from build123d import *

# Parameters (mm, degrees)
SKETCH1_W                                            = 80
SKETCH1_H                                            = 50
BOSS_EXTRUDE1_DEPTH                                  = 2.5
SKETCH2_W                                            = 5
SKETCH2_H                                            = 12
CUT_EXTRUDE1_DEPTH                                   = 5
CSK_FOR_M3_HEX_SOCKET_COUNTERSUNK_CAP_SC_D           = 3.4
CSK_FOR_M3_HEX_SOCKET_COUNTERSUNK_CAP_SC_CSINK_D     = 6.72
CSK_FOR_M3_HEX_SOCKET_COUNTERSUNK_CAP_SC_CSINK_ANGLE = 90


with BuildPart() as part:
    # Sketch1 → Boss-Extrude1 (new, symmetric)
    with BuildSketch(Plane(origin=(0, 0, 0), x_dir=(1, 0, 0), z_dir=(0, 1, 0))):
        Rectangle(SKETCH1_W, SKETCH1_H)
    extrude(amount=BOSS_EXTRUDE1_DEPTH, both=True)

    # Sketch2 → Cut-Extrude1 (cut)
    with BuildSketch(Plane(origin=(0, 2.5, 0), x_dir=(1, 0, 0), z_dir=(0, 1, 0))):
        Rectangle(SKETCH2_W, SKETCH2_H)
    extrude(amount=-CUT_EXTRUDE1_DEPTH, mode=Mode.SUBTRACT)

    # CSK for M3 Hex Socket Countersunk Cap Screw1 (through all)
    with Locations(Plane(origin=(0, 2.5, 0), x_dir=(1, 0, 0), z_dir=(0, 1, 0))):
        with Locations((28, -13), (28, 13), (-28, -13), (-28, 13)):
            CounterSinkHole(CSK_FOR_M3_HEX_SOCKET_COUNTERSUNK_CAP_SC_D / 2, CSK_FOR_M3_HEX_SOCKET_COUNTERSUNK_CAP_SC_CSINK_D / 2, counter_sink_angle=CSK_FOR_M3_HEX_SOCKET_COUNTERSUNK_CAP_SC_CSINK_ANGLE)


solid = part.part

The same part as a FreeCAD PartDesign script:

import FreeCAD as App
import Part
import Sketcher

doc = App.newDocument("Part")
body = doc.addObject("PartDesign::Body", "Body")

sketch1 = body.newObject("Sketcher::SketchObject", "Sketch")
sketch1.AttachmentSupport = (doc.getObject("XZ_Plane"), [""])
sketch1.MapMode = "FlatFace"
sketch1.addGeometry(Part.LineSegment(App.Vector(-40, -25, 0), App.Vector(-40, 25, 0)), False)
sketch1.addGeometry(Part.LineSegment(App.Vector(-40, 25, 0), App.Vector(40, 25, 0)), False)
sketch1.addGeometry(Part.LineSegment(App.Vector(40, 25, 0), App.Vector(40, -25, 0)), False)
sketch1.addGeometry(Part.LineSegment(App.Vector(40, -25, 0), App.Vector(-40, -25, 0)), False)
sketch1.addConstraint(Sketcher.Constraint("Coincident", 0, 2, 1, 1))
sketch1.addConstraint(Sketcher.Constraint("Coincident", 1, 2, 2, 1))
sketch1.addConstraint(Sketcher.Constraint("Coincident", 2, 2, 3, 1))
sketch1.addConstraint(Sketcher.Constraint("Coincident", 3, 2, 0, 1))
sketch1.addConstraint(Sketcher.Constraint("Vertical", 0))
sketch1.addConstraint(Sketcher.Constraint("Horizontal", 1))
sketch1.addConstraint(Sketcher.Constraint("Vertical", 2))
sketch1.addConstraint(Sketcher.Constraint("Horizontal", 3))
sketch1.addConstraint(Sketcher.Constraint("Symmetric", 0, 2, 2, 2, -1, 1))
sketch1.addConstraint(Sketcher.Constraint("DistanceX", 1, 1, 1, 2, 80.0))
sketch1.addConstraint(Sketcher.Constraint("DistanceY", 0, 1, 0, 2, 50.0))
pad1 = body.newObject("PartDesign::Pad", "Pad")
pad1.Profile = sketch1
pad1.Length = 5
pad1.Midplane = True

sketch2 = body.newObject("Sketcher::SketchObject", "Sketch001")
sketch2.AttachmentSupport = (doc.getObject("XZ_Plane"), [""])
sketch2.MapMode = "FlatFace"
sketch2.AttachmentOffset = App.Placement(App.Vector(0, 0, -2.5), App.Rotation())
sketch2.addGeometry(Part.LineSegment(App.Vector(-2.5, -6, 0), App.Vector(-2.5, 6, 0)), False)
sketch2.addGeometry(Part.LineSegment(App.Vector(-2.5, 6, 0), App.Vector(2.5, 6, 0)), False)
sketch2.addGeometry(Part.LineSegment(App.Vector(2.5, 6, 0), App.Vector(2.5, -6, 0)), False)
sketch2.addGeometry(Part.LineSegment(App.Vector(2.5, -6, 0), App.Vector(-2.5, -6, 0)), False)
sketch2.addConstraint(Sketcher.Constraint("Coincident", 0, 2, 1, 1))
sketch2.addConstraint(Sketcher.Constraint("Coincident", 1, 2, 2, 1))
sketch2.addConstraint(Sketcher.Constraint("Coincident", 2, 2, 3, 1))
sketch2.addConstraint(Sketcher.Constraint("Coincident", 3, 2, 0, 1))
sketch2.addConstraint(Sketcher.Constraint("Vertical", 0))
sketch2.addConstraint(Sketcher.Constraint("Horizontal", 1))
sketch2.addConstraint(Sketcher.Constraint("Vertical", 2))
sketch2.addConstraint(Sketcher.Constraint("Horizontal", 3))
sketch2.addConstraint(Sketcher.Constraint("Symmetric", 0, 2, 2, 2, -1, 1))
sketch2.addConstraint(Sketcher.Constraint("DistanceX", 1, 1, 1, 2, 5.0))
sketch2.addConstraint(Sketcher.Constraint("DistanceY", 0, 1, 0, 2, 12.0))
pocket1 = body.newObject("PartDesign::Pocket", "Pocket")
pocket1.Profile = sketch2
pocket1.Length = 5
pocket1.Reversed = True

sketch3 = body.newObject("Sketcher::SketchObject", "Sketch002")
sketch3.AttachmentSupport = (doc.getObject("XZ_Plane"), [""])
sketch3.MapMode = "FlatFace"
sketch3.AttachmentOffset = App.Placement(App.Vector(0, 0, -2.5), App.Rotation())
sketch3.addGeometry(Part.Circle(App.Vector(28, 13, 0), App.Vector(0, 0, 1), 1.7), False)
sketch3.addGeometry(Part.Circle(App.Vector(28, -13, 0), App.Vector(0, 0, 1), 1.7), False)
sketch3.addGeometry(Part.Circle(App.Vector(-28, 13, 0), App.Vector(0, 0, 1), 1.7), False)
sketch3.addGeometry(Part.Circle(App.Vector(-28, -13, 0), App.Vector(0, 0, 1), 1.7), False)
sketch3.addConstraint(Sketcher.Constraint("Equal", 0, 1))
sketch3.addConstraint(Sketcher.Constraint("Equal", 1, 2))
sketch3.addConstraint(Sketcher.Constraint("Equal", 2, 3))
sketch3.addConstraint(Sketcher.Constraint("Symmetric", 1, 3, 2, 3, -1, 1))
sketch3.addConstraint(Sketcher.Constraint("Symmetric", 0, 3, 3, 3, -1, 1))
sketch3.addConstraint(Sketcher.Constraint("Symmetric", 0, 3, 2, 3, -2))
sketch3.addConstraint(Sketcher.Constraint("Diameter", 0, 3.4))
sketch3.addConstraint(Sketcher.Constraint("DistanceX", -1, 1, 0, 3, 28.0))
sketch3.addConstraint(Sketcher.Constraint("DistanceY", -1, 1, 0, 3, 13.0))
doc.recompute()
hole = body.newObject("PartDesign::Hole", "Hole")
hole.Profile = sketch3
hole.ThreadType = "None"
hole.Diameter = 3.4
hole.DepthType = "ThroughAll"
hole.HoleCutType = "Countersink"
hole.HoleCutDiameter = 6.72
hole.HoleCutCountersinkAngle = 90
hole.Reversed = True

doc.recompute()
